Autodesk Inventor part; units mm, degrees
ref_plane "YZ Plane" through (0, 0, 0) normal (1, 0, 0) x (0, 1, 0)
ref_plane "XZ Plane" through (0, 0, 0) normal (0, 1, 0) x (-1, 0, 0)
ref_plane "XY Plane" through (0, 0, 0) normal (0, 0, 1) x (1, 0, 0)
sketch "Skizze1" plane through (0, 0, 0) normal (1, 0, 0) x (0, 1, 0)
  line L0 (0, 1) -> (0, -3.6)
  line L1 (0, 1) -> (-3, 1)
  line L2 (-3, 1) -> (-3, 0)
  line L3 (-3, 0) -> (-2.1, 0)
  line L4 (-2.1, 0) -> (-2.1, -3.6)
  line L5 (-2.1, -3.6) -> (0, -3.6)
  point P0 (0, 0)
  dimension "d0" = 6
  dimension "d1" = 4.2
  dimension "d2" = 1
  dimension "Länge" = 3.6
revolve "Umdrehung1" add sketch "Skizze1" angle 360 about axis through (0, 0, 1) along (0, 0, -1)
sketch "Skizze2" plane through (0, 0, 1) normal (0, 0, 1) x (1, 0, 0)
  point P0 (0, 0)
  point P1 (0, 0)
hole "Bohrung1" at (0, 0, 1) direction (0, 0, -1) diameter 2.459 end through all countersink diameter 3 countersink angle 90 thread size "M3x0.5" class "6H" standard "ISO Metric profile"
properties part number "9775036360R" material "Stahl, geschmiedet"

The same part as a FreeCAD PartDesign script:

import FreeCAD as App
import Part
import Sketcher
Q = App.Units.Quantity


def add_polygon(sketch, points):
    """Adds a closed chain of lines whose ends are joined by coincident constraints."""
    first, n = sketch.GeometryCount, len(points)
    for a, b in zip(points, points[1:] + points[:1]):
        sketch.addGeometry(Part.LineSegment(App.Vector(*a, 0), App.Vector(*b, 0)), False)
    for i in range(n):
        sketch.addConstraint(Sketcher.Constraint("Coincident", first + i, 2, first + (i + 1) % n, 1))

doc = App.newDocument("Part")
body = doc.addObject("PartDesign::Body", "Body")

# Sketch on YZ plane
sketch1 = body.newObject("Sketcher::SketchObject", "Sketch")
sketch1.AttachmentSupport = (doc.getObject("YZ_Plane"), [""])
sketch1.MapMode = "FlatFace"
add_polygon(sketch1, [(0, -3.6), (0, 1), (-3, 1), (-3, 0), (-2.1, 0), (-2.1, -3.6)])  # lines 0-5
sketch1.addConstraint(Sketcher.Constraint("Vertical", 0))
sketch1.addConstraint(Sketcher.Constraint("Horizontal", 1))
sketch1.addConstraint(Sketcher.Constraint("Vertical", 2))
sketch1.addConstraint(Sketcher.Constraint("Horizontal", 3))
sketch1.addConstraint(Sketcher.Constraint("Vertical", 4))
sketch1.addConstraint(Sketcher.Constraint("Horizontal", 5))
sketch1.addConstraint(Sketcher.Constraint("PointOnObject", 0, 2, -2))
sketch1.addConstraint(Sketcher.Constraint("PointOnObject", 2, 2, -1))
sketch1.addConstraint(Sketcher.Constraint("DistanceY", 2, 2, 2, 1, Q("1 mm")))
sketch1.addConstraint(Sketcher.Constraint("DistanceY", 4, 2, 4, 1, Q("3.6 mm")))
sketch1.addConstraint(Sketcher.Constraint("DistanceX", 1, 2, 1, 1, Q("3 mm")))
sketch1.addConstraint(Sketcher.Constraint("DistanceX", 3, 1, 3, 2, Q("0.9 mm")))
revolution = body.newObject("PartDesign::Revolution", "Revolution")
revolution.Profile = sketch1
revolution.ReferenceAxis = (sketch1, ["V_Axis"])
revolution.Angle = 360

# Sketch on XY plane
sketch2 = body.newObject("Sketcher::SketchObject", "Sketch001")
sketch2.AttachmentSupport = (doc.getObject("XY_Plane"), [""])
sketch2.MapMode = "FlatFace"
sketch2.AttachmentOffset = App.Placement(App.Vector(0, 0, 1), App.Rotation())
sketch2.addGeometry(Part.Circle(App.Vector(0, 0, 0), App.Vector(0, 0, 1), 1.2295), False)
sketch2.addConstraint(Sketcher.Constraint("Coincident", 0, 3, -1, 1))
sketch2.addConstraint(Sketcher.Constraint("Diameter", 0, Q("2.459 mm")))
doc.recompute()
hole = body.newObject("PartDesign::Hole", "Hole")
hole.Profile = sketch2
hole.ThreadType = "None"
hole.Diameter = 2.459
hole.DepthType = "ThroughAll"
hole.HoleCutType = "Countersink"
hole.HoleCutDiameter = 3
hole.HoleCutCountersinkAngle = 90

doc.recompute()
